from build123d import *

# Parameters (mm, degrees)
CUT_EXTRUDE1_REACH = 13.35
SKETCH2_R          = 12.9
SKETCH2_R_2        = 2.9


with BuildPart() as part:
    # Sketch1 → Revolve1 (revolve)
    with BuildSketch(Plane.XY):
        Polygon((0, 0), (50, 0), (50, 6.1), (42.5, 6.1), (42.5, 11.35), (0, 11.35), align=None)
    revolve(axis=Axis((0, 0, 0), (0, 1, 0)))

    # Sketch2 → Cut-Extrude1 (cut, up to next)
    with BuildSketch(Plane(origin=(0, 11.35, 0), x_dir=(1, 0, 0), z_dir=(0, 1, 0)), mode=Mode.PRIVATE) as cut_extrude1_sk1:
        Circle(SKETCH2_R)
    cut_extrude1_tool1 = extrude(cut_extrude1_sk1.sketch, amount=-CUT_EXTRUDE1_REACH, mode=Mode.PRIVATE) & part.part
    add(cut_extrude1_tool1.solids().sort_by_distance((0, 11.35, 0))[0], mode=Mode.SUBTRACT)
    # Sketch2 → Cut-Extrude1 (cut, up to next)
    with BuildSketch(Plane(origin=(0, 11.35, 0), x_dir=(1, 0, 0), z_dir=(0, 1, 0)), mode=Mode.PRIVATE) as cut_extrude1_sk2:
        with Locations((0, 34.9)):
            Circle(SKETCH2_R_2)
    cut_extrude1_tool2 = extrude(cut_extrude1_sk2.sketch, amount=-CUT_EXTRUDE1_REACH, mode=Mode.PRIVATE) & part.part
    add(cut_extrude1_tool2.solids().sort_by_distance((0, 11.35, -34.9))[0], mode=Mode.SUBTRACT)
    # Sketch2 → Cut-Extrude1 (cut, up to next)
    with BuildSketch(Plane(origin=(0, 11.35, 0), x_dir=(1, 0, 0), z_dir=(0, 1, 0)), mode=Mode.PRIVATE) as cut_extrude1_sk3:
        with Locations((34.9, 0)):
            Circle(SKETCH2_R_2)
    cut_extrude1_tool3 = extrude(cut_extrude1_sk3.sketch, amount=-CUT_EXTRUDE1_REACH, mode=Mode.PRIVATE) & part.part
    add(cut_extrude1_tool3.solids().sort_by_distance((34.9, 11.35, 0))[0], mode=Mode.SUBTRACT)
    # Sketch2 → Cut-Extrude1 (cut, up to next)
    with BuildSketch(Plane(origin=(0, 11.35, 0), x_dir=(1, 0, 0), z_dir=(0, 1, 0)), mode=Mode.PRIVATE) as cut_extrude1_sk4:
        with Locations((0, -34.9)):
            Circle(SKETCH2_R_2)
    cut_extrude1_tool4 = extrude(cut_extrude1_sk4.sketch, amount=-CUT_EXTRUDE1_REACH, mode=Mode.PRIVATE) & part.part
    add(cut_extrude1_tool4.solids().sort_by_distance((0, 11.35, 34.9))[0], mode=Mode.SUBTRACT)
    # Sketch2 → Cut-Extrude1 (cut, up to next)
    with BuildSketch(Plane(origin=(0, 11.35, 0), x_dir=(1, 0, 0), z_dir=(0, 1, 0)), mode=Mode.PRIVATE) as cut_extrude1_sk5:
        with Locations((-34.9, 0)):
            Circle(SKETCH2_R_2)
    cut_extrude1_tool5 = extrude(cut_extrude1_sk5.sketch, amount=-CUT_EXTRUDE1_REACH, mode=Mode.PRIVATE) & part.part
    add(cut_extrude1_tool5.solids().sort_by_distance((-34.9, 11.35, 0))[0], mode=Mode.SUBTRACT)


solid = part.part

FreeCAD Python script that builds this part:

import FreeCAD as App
import Part
import Sketcher
from FreeCAD import Vector
Q = App.Units.Quantity


def add_polygon(sketch, points):
    """Adds a closed chain of lines whose ends are joined by coincident constraints."""
    first, n = sketch.GeometryCount, len(points)
    for a, b in zip(points, points[1:] + points[:1]):
        sketch.addGeometry(Part.LineSegment(App.Vector(*a, 0), App.Vector(*b, 0)), False)
    for i in range(n):
        sketch.addConstraint(Sketcher.Constraint("Coincident", first + i, 2, first + (i + 1) % n, 1))

doc = App.newDocument("Part")
body = doc.addObject("PartDesign::Body", "Body")

# Sketch on XY plane
sketch1 = body.newObject("Sketcher::SketchObject", "Sketch")
sketch1.AttachmentSupport = (doc.getObject("XY_Plane"), [""])
sketch1.MapMode = "FlatFace"
add_polygon(sketch1, [(0, 0), (50, 0), (50, 6), (42, 6), (42, 11), (0, 11)])  # lines 0-5
sketch1.addConstraint(Sketcher.Constraint("Horizontal", 0))
sketch1.addConstraint(Sketcher.Constraint("Vertical", 1))
sketch1.addConstraint(Sketcher.Constraint("Horizontal", 2))
sketch1.addConstraint(Sketcher.Constraint("Vertical", 3))
sketch1.addConstraint(Sketcher.Constraint("Horizontal", 4))
sketch1.addConstraint(Sketcher.Constraint("Vertical", 5))
sketch1.addConstraint(Sketcher.Constraint("Coincident", 5, 2, -1, 1))
sketch1.addConstraint(Sketcher.Constraint("DistanceX", 0, 1, 0, 2, Q("50 mm")))
sketch1.addConstraint(Sketcher.Constraint("DistanceX", 2, 2, 2, 1, Q("7.5 mm")))
sketch1.addConstraint(Sketcher.Constraint("DistanceY", 1, 1, 1, 2, Q("6.1 mm")))
sketch1.addConstraint(Sketcher.Constraint("DistanceY", 3, 1, 3, 2, Q("5.25 mm")))
revolution = body.newObject("PartDesign::Revolution", "Revolution")
revolution.Profile = sketch1
revolution.ReferenceAxis = (sketch1, ["V_Axis"])
revolution.Angle = 360

# Sketch on XZ plane
sketch2 = body.newObject("Sketcher::SketchObject", "Sketch001")
sketch2.AttachmentSupport = (doc.getObject("XZ_Plane"), [""])
sketch2.MapMode = "FlatFace"
sketch2.AttachmentOffset = App.Placement(Vector(0, 0, -11.35), App.Rotation())
sketch2.addGeometry(Part.Circle(Vector(0, 0, 0), Vector(0, 0, 1), 13), False)
sketch2.addConstraint(Sketcher.Constraint("Coincident", 0, 3, -1, 1))
sketch2.addConstraint(Sketcher.Constraint("Diameter", 0, Q("25.8 mm")))
pocket1 = body.newObject("PartDesign::Pocket", "Pocket")
pocket1.Profile = sketch2
pocket1.Type = "UpToFirst"
pocket1.Reversed = True

# Sketch on XZ plane
sketch3 = body.newObject("Sketcher::SketchObject", "Sketch002")
sketch3.AttachmentSupport = (doc.getObject("XZ_Plane"), [""])
sketch3.MapMode = "FlatFace"
sketch3.AttachmentOffset = App.Placement(Vector(0, 0, -11.35), App.Rotation())
sketch3.addGeometry(Part.Circle(Vector(0, -34.9, 0), Vector(0, 0, 1), 2.9), False)
sketch3.addConstraint(Sketcher.Constraint("PointOnObject", 0, 3, -2))
sketch3.addConstraint(Sketcher.Constraint("Diameter", 0, Q("5.8 mm")))
sketch3.addConstraint(Sketcher.Constraint("DistanceY", 0, 3, -1, 1, Q("34.9 mm")))
pocket2 = body.newObject("PartDesign::Pocket", "Pocket001")
pocket2.Profile = sketch3
pocket2.Type = "UpToFirst"
pocket2.Reversed = True

# Sketch on XZ plane
sketch4 = body.newObject("Sketcher::SketchObject", "Sketch003")
sketch4.AttachmentSupport = (doc.getObject("XZ_Plane"), [""])
sketch4.MapMode = "FlatFace"
sketch4.AttachmentOffset = App.Placement(Vector(0, 0, -11.35), App.Rotation())
sketch4.addGeometry(Part.Circle(Vector(34.9, 0, 0), Vector(0, 0, 1), 2.9), False)
sketch4.addConstraint(Sketcher.Constraint("PointOnObject", 0, 3, -1))
sketch4.addConstraint(Sketcher.Constraint("Diameter", 0, Q("5.8 mm")))
sketch4.addConstraint(Sketcher.Constraint("DistanceX", -1, 1, 0, 3, Q("34.9 mm")))
pocket3 = body.newObject("PartDesign::Pocket", "Pocket002")
pocket3.Profile = sketch4
pocket3.Type = "UpToFirst"
pocket3.Reversed = True

# Sketch on XZ plane
sketch5 = body.newObject("Sketcher::SketchObject", "Sketch004")
sketch5.AttachmentSupport = (doc.getObject("XZ_Plane"), [""])
sketch5.MapMode = "FlatFace"
sketch5.AttachmentOffset = App.Placement(Vector(0, 0, -11.35), App.Rotation())
sketch5.addGeometry(Part.Circle(Vector(0, 34.9, 0), Vector(0, 0, 1), 2.9), False)
sketch5.addConstraint(Sketcher.Constraint("PointOnObject", 0, 3, -2))
sketch5.addConstraint(Sketcher.Constraint("Diameter", 0, Q("5.8 mm")))
sketch5.addConstraint(Sketcher.Constraint("DistanceY", -1, 1, 0, 3, Q("34.9 mm")))
pocket4 = body.newObject("PartDesign::Pocket", "Pocket003")
pocket4.Profile = sketch5
pocket4.Type = "UpToFirst"
pocket4.Reversed = True

# Sketch on XZ plane
sketch6 = body.newObject("Sketcher::SketchObject", "Sketch005")
sketch6.AttachmentSupport = (doc.getObject("XZ_Plane"), [""])
sketch6.MapMode = "FlatFace"
sketch6.AttachmentOffset = App.Placement(Vector(0, 0, -11.35), App.Rotation())
sketch6.addGeometry(Part.Circle(Vector(-34.9, 0, 0), Vector(0, 0, 1), 2.9), False)
sketch6.addConstraint(Sketcher.Constraint("PointOnObject", 0, 3, -1))
sketch6.addConstraint(Sketcher.Constraint("Diameter", 0, Q("5.8 mm")))
sketch6.addConstraint(Sketcher.Constraint("DistanceX", 0, 3, -1, 1, Q("34.9 mm")))
pocket5 = body.newObject("PartDesign::Pocket", "Pocket004")
pocket5.Profile = sketch6
pocket5.Type = "UpToFirst"
pocket5.Reversed = True

doc.recompute()
